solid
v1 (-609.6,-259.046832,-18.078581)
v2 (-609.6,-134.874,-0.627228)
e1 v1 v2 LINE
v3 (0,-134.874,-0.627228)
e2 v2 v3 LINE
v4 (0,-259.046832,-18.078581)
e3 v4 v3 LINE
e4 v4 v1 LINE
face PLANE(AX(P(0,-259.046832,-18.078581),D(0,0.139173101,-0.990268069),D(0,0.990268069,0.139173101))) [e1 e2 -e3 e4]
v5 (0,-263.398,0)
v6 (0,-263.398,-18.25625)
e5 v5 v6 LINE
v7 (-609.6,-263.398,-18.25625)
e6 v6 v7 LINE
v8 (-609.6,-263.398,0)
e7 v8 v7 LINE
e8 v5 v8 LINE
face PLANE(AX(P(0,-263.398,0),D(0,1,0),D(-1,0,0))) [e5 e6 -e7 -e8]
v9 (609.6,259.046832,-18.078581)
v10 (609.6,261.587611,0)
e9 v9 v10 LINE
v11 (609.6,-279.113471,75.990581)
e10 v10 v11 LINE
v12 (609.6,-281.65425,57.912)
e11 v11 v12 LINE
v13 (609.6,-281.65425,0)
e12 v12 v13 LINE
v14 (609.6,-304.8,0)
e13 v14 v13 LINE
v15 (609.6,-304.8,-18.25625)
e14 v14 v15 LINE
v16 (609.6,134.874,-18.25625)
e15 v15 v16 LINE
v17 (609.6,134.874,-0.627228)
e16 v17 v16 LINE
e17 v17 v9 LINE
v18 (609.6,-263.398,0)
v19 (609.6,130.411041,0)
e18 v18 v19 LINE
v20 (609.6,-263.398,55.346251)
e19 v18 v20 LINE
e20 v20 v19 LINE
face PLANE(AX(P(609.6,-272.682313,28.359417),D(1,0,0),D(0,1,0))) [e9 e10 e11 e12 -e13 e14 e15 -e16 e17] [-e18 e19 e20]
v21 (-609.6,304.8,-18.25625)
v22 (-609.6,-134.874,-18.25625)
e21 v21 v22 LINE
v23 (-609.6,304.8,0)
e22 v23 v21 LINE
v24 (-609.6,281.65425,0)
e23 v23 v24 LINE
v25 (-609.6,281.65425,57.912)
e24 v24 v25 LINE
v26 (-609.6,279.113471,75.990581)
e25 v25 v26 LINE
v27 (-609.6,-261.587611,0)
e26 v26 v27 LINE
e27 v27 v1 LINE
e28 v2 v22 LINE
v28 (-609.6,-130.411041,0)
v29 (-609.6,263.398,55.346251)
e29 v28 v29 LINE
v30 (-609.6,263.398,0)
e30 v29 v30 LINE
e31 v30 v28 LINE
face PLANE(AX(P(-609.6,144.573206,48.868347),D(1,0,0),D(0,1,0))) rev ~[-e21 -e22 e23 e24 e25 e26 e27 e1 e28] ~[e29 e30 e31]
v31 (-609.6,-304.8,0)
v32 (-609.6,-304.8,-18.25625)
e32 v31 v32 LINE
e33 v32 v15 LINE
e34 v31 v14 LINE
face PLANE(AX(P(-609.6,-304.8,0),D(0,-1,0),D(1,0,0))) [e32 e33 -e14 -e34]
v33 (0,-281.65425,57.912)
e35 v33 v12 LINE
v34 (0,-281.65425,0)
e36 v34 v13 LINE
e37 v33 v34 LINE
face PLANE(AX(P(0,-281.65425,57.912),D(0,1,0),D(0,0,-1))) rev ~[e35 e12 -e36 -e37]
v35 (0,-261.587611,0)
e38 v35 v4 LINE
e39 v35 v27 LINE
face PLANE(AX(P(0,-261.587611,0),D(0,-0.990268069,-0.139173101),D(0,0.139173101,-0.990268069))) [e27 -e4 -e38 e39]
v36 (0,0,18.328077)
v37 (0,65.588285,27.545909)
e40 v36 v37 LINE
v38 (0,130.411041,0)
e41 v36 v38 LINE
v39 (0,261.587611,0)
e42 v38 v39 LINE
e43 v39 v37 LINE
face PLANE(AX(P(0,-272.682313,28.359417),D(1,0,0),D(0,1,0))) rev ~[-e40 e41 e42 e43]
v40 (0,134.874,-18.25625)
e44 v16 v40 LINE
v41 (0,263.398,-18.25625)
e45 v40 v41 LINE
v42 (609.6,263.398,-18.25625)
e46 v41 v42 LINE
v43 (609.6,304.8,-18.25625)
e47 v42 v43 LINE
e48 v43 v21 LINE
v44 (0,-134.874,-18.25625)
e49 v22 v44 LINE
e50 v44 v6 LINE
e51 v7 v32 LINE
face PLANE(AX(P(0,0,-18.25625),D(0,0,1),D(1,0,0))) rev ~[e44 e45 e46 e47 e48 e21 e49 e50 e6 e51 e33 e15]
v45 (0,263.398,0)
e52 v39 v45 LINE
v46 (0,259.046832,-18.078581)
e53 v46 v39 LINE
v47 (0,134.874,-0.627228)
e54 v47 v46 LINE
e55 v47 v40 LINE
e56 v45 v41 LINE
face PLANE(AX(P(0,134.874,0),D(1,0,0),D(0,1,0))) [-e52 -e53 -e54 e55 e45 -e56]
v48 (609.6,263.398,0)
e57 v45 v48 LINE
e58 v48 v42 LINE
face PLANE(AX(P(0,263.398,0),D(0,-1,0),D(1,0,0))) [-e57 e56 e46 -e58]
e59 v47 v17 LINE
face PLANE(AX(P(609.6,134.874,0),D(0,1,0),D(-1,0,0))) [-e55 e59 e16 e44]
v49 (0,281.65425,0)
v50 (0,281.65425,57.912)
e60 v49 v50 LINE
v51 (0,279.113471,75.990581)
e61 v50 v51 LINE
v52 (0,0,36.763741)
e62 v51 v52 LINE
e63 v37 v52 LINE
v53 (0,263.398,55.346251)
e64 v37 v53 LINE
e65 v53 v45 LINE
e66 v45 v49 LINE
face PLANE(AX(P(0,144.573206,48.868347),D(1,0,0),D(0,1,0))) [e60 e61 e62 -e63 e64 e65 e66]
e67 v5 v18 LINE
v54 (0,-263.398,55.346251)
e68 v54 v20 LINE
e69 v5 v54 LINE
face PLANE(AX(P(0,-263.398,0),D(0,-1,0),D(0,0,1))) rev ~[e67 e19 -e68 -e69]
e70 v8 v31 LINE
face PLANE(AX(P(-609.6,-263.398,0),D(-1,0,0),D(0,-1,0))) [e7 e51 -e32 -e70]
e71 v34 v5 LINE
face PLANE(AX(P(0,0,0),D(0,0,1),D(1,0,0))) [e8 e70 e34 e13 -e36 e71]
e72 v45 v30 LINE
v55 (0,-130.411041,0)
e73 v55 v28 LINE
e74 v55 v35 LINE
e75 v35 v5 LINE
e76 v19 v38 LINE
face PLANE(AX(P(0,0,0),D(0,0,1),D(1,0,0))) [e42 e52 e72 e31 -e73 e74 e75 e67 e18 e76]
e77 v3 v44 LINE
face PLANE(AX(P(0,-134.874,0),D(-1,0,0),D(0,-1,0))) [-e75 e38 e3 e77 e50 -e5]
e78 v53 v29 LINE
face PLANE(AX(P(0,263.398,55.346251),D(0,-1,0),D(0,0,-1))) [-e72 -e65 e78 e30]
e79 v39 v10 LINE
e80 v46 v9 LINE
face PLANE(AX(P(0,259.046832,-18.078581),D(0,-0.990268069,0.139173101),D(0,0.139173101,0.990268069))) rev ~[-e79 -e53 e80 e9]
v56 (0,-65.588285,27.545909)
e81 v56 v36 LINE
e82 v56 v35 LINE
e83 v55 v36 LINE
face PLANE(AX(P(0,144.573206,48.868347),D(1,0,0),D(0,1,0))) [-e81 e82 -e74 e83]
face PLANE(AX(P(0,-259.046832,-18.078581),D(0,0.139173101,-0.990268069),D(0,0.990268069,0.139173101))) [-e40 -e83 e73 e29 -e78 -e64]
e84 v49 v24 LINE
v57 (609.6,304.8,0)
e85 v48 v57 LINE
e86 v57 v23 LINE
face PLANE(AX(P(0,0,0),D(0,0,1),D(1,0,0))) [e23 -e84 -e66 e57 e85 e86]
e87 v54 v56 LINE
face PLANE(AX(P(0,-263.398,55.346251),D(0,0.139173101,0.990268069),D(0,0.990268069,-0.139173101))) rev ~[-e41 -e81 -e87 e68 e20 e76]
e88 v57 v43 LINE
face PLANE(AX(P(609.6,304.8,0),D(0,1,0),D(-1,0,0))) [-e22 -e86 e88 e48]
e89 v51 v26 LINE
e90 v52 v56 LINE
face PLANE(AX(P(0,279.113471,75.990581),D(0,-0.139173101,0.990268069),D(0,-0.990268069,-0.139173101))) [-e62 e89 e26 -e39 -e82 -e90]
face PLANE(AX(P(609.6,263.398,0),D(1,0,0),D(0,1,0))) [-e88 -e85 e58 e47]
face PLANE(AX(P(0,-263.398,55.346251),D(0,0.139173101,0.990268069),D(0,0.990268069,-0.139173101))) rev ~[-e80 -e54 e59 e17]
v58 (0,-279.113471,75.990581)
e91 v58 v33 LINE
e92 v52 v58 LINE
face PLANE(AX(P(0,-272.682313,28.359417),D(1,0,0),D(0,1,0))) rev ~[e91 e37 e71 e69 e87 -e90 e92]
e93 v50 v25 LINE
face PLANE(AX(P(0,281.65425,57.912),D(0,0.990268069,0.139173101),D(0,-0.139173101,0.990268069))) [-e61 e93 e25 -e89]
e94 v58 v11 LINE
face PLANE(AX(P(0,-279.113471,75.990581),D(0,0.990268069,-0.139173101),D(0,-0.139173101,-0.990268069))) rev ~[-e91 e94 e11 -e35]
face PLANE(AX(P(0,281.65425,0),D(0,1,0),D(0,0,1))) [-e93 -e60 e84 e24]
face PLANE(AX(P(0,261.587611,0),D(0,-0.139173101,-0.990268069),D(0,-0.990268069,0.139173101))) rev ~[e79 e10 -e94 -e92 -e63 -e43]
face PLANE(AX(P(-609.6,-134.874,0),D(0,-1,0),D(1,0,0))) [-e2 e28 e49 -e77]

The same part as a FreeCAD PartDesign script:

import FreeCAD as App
import Part
import Sketcher

V = App.Vector
Q = App.Units.Quantity


def add_polygon(sketch, points):
    """Adds a closed chain of lines whose ends are joined by coincident constraints."""
    first, n = sketch.GeometryCount, len(points)
    for a, b in zip(points, points[1:] + points[:1]):
        sketch.addGeometry(Part.LineSegment(App.Vector(*a, 0), App.Vector(*b, 0)), False)
    for i in range(n):
        sketch.addConstraint(Sketcher.Constraint("Coincident", first + i, 2, first + (i + 1) % n, 1))

doc = App.newDocument("Part")
body = doc.addObject("PartDesign::Body", "Body")

sketch1 = body.newObject("Sketcher::SketchObject", "Sketch")
sketch1.AttachmentSupport = (doc.getObject("XY_Plane"), [""])
sketch1.MapMode = "FlatFace"
add_polygon(sketch1, [(610, 263), (610, 305), (-610, 305), (-610, -135), (0, -135), (0, -263), (-610, -263), (-610, -305), (610, -305), (610, 135), (0, 135), (0, 263)])
sketch1.addConstraint(Sketcher.Constraint("Vertical", 0))
sketch1.addConstraint(Sketcher.Constraint("Horizontal", 1))
sketch1.addConstraint(Sketcher.Constraint("Vertical", 2))
sketch1.addConstraint(Sketcher.Constraint("Horizontal", 3))
sketch1.addConstraint(Sketcher.Constraint("Vertical", 4))
sketch1.addConstraint(Sketcher.Constraint("Horizontal", 5))
sketch1.addConstraint(Sketcher.Constraint("Vertical", 6))
sketch1.addConstraint(Sketcher.Constraint("Horizontal", 7))
sketch1.addConstraint(Sketcher.Constraint("Vertical", 8))
sketch1.addConstraint(Sketcher.Constraint("Horizontal", 9))
sketch1.addConstraint(Sketcher.Constraint("Vertical", 10))
sketch1.addConstraint(Sketcher.Constraint("Horizontal", 11))
sketch1.addConstraint(Sketcher.Constraint("Symmetric", 0, 2, 6, 2, -1, 1))
sketch1.addConstraint(Sketcher.Constraint("Symmetric", 2, 2, 8, 2, -1, 1))
sketch1.addConstraint(Sketcher.Constraint("Symmetric", 4, 2, 10, 2, -1, 1))
sketch1.addConstraint(Sketcher.Constraint("PointOnObject", 3, 2, -2))
sketch1.addConstraint(Sketcher.Constraint("Vertical", 2, 2, 5, 2))
sketch1.addConstraint(Sketcher.Constraint("DistanceX", 1, 2, 1, 1, Q("48 in")))
sketch1.addConstraint(Sketcher.Constraint("DistanceY", -1, 1, 0, 2, Q("12 in")))
sketch1.addConstraint(Sketcher.Constraint("DistanceY", 0, 1, 0, 2, Q("1.63 in")))
sketch1.addConstraint(Sketcher.Constraint("DistanceY", 2, 2, 2, 1, Q("17.31 in")))
pad1 = body.newObject("PartDesign::Pad", "Pad")
pad1.Profile = sketch1
pad1.Length = Q("0.71875 in")
pad1.Reversed = True

sketch2 = body.newObject("Sketcher::SketchObject", "Sketch001")
sketch2.AttachmentSupport = (doc.getObject("YZ_Plane"), [""])
sketch2.MapMode = "FlatFace"
add_polygon(sketch2, [(263, 55), (263, 0), (282, 0), (282, 58), (279, 76), (-262, 0), (-259, -18)])
sketch2.addConstraint(Sketcher.Constraint("Vertical", 0))
sketch2.addConstraint(Sketcher.Constraint("Horizontal", 1))
sketch2.addConstraint(Sketcher.Constraint("Vertical", 2))
sketch2.addConstraint(Sketcher.Constraint("PointOnObject", 0, 2, -1))
sketch2.addConstraint(Sketcher.Constraint("PointOnObject", 4, 2, -1))
sketch2.addConstraint(Sketcher.Constraint("Perpendicular", 3, 4))
sketch2.addConstraint(Sketcher.Constraint("Perpendicular", 4, 5))
sketch2.addConstraint(Sketcher.Constraint("Perpendicular", 5, 6))
sketch2.addConstraint(Sketcher.Constraint("Equal", 3, 5))
sketch2.addConstraint(Sketcher.Constraint("Angle", 3, Q("98 deg")))
sketch2.addConstraint(Sketcher.Constraint("DistanceY", 2, 1, 2, 2, Q("2.28 in")))
sketch2.addConstraint(Sketcher.Constraint("DistanceX", 1, 1, 1, 2, Q("0.71875 in")))
sketch2.addConstraint(Sketcher.Constraint("DistanceX", -1, 1, 0, 2, Q("10.37 in")))
sketch2.addConstraint(Sketcher.Constraint("Distance", 3, Q("0.71875 in")))
pad2 = body.newObject("PartDesign::Pad", "Pad001")
pad2.Profile = sketch2
pad2.Length = Q("24 in")
pad2.Reversed = True

sketch3 = body.newObject("Sketcher::SketchObject", "Sketch002")
sketch3.AttachmentSupport = (doc.getObject("YZ_Plane"), [""])
sketch3.MapMode = "FlatFace"
add_polygon(sketch3, [(-263, 0), (-263, 55), (259, -18), (262, 0), (-279, 76), (-282, 58), (-282, 0)])
sketch3.addConstraint(Sketcher.Constraint("Vertical", 0))
sketch3.addConstraint(Sketcher.Constraint("Vertical", 5))
sketch3.addConstraint(Sketcher.Constraint("Horizontal", 6))
sketch3.addConstraint(Sketcher.Constraint("PointOnObject", 2, 2, -1))
sketch3.addConstraint(Sketcher.Constraint("PointOnObject", 5, 2, -1))
sketch3.addConstraint(Sketcher.Constraint("Perpendicular", 1, 2))
sketch3.addConstraint(Sketcher.Constraint("Perpendicular", 2, 3))
sketch3.addConstraint(Sketcher.Constraint("Perpendicular", 3, 4))
sketch3.addConstraint(Sketcher.Constraint("Equal", 2, 4))
sketch3.addConstraint(Sketcher.Constraint("Angle", 1, Q("-8 deg")))
sketch3.addConstraint(Sketcher.Constraint("DistanceY", 5, 2, 5, 1, Q("2.28 in")))
sketch3.addConstraint(Sketcher.Constraint("DistanceX", 6, 1, 6, 2, Q("0.71875 in")))
sketch3.addConstraint(Sketcher.Constraint("DistanceX", 0, 2, -1, 1, Q("10.37 in")))
sketch3.addConstraint(Sketcher.Constraint("Distance", 2, Q("0.71875 in")))
pad3 = body.newObject("PartDesign::Pad", "Pad002")
pad3.Profile = sketch3
pad3.Length = Q("24 in")

doc.recompute()
